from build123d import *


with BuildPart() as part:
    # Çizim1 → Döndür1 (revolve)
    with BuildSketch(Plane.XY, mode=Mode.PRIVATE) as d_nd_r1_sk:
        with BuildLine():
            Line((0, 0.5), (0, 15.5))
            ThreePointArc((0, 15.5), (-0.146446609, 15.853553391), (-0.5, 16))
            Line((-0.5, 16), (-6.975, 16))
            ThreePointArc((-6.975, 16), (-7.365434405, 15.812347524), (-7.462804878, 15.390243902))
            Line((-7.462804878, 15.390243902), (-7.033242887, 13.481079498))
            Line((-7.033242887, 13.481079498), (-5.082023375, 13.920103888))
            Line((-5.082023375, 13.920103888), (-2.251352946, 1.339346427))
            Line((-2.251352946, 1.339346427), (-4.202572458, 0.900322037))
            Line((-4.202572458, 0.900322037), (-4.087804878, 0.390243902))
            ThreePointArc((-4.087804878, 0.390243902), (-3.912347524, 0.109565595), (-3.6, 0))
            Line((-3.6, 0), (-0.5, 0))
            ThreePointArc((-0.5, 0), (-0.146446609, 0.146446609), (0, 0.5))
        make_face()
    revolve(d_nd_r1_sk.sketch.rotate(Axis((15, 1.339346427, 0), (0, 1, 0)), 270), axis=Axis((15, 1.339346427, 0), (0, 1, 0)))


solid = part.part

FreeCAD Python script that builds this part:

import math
import FreeCAD as App
import Part
import Sketcher

doc = App.newDocument("Part")
body = doc.addObject("PartDesign::Body", "Body")

# Sketch on XY plane
sketch1 = body.newObject("Sketcher::SketchObject", "Sketch")
sketch1.AttachmentSupport = (doc.getObject("XY_Plane"), [""])
sketch1.MapMode = "FlatFace"
sketch1.addGeometry([
    Part.LineSegment(App.Vector(0, 0.5, 0), App.Vector(0, 15.5, 0)),  # 0
    Part.ArcOfCircle(Part.Circle(App.Vector(-0.5, 15.5, 0), App.Vector(0, 0, 1), 0.5), math.radians(0), math.radians(90)),  # 1
    Part.LineSegment(App.Vector(-0.5, 16, 0), App.Vector(-6.97, 16, 0)),  # 2
    Part.ArcOfCircle(Part.Circle(App.Vector(-6.98, 15.5, 0), App.Vector(0, 0, 1), 0.5), math.radians(90), math.radians(193)),  # 3
    Part.LineSegment(App.Vector(-7.46, 15.39, 0), App.Vector(-7.03, 13.48, 0)),  # 4
    Part.LineSegment(App.Vector(-7.03, 13.48, 0), App.Vector(-5.08, 13.92, 0)),  # 5
    Part.LineSegment(App.Vector(-5.08, 13.92, 0), App.Vector(-2.25, 1.34, 0)),  # 6
    Part.LineSegment(App.Vector(-2.25, 1.34, 0), App.Vector(-4.2, 0.9, 0)),  # 7
    Part.LineSegment(App.Vector(-4.2, 0.9, 0), App.Vector(-4.09, 0.39, 0)),  # 8
    Part.ArcOfCircle(Part.Circle(App.Vector(-3.6, 0.5, 0), App.Vector(0, 0, 1), 0.5), math.radians(-167), math.radians(-90)),  # 9
    Part.LineSegment(App.Vector(-3.6, 0, 0), App.Vector(-0.5, 0, 0)),  # 10
    Part.ArcOfCircle(Part.Circle(App.Vector(-0.5, 0.5, 0), App.Vector(0, 0, 1), 0.5), math.radians(-90), math.radians(0)),  # 11
], False)
sketch1.addGeometry(Part.LineSegment(App.Vector(15, 0, 0), App.Vector(15, 16, 0)), True)  # axis
sketch1.addConstraint([
    Sketcher.Constraint("Tangent", 0, 2, 1, 1),
    Sketcher.Constraint("Tangent", 1, 2, 2, 1),
    Sketcher.Constraint("Tangent", 2, 2, 3, 1),
    Sketcher.Constraint("Tangent", 3, 2, 4, 1),
    Sketcher.Constraint("Coincident", 4, 2, 5, 1),
    Sketcher.Constraint("Coincident", 5, 2, 6, 1),
    Sketcher.Constraint("Coincident", 6, 2, 7, 1),
    Sketcher.Constraint("Coincident", 7, 2, 8, 1),
    Sketcher.Constraint("Tangent", 8, 2, 9, 1),
    Sketcher.Constraint("Tangent", 9, 2, 10, 1),
    Sketcher.Constraint("Tangent", 10, 2, 11, 1),
    Sketcher.Constraint("Tangent", 11, 2, 0, 1),
    Sketcher.Constraint("Vertical", 0),
    Sketcher.Constraint("Horizontal", 2),
    Sketcher.Constraint("Horizontal", 10),
    Sketcher.Constraint("Vertical", 12),
    Sketcher.Constraint("Equal", 1, 3),
    Sketcher.Constraint("Equal", 3, 9),
    Sketcher.Constraint("Equal", 9, 11),
    Sketcher.Constraint("PointOnObject", 0, 2, -2),
    Sketcher.Constraint("PointOnObject", 9, 2, -1),
    Sketcher.Constraint("PointOnObject", 12, 1, -1),
    Sketcher.Constraint("Perpendicular", 4, 5),
    Sketcher.Constraint("Perpendicular", 5, 6),
    Sketcher.Constraint("Perpendicular", 6, 7),
    Sketcher.Constraint("Perpendicular", 7, 8),
    Sketcher.Constraint("Horizontal", 2, 2, 12, 2),
    Sketcher.Constraint("Equal", 5, 7),
    Sketcher.Constraint("Radius", 1, 0.5),
    Sketcher.Constraint("DistanceY", 0, 1, 0, 2, 15.0),
    Sketcher.Constraint("Distance", 5, 2.0),
    Sketcher.Constraint("DistanceX", 10, 1, 10, 2, 3.1),
    Sketcher.Constraint("DistanceX", -1, 1, 12, 1, 15.0),
    Sketcher.Constraint("DistanceX", 2, 2, 2, 1, 6.475),
    Sketcher.Constraint("Distance", 8, 0.52283),
    Sketcher.Constraint("DistanceY", -1, 1, 4, 2, 13.481079),
])
revolution = body.newObject("PartDesign::Revolution", "Revolution")
revolution.Profile = sketch1
revolution.ReferenceAxis = (sketch1, ["Axis0"])
revolution.Angle = 360

doc.recompute()
